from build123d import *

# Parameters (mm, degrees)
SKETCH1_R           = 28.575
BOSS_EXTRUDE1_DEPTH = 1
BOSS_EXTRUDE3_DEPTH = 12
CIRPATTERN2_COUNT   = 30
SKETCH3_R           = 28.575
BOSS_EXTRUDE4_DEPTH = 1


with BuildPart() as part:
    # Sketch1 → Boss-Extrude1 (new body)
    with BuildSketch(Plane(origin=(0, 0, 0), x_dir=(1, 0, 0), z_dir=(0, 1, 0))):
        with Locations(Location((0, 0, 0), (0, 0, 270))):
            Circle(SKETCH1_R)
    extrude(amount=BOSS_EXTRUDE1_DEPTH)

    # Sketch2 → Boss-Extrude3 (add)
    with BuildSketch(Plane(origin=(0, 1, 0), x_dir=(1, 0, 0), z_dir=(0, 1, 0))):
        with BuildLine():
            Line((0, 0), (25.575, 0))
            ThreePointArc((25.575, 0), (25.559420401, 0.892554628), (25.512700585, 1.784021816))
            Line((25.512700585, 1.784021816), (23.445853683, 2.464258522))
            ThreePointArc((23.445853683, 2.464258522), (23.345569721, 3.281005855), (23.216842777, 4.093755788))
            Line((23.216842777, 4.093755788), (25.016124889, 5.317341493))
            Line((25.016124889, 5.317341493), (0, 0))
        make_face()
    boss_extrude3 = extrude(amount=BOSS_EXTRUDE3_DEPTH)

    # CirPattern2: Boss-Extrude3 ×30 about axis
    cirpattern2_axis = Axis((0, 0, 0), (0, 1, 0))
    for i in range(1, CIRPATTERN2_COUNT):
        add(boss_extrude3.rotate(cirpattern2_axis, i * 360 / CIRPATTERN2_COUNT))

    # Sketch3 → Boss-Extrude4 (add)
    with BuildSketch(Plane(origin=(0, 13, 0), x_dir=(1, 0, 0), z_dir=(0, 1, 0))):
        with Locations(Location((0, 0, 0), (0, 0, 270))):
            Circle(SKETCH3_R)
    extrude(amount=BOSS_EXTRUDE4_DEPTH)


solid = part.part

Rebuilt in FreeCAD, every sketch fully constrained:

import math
import FreeCAD as App
import Part
import Sketcher
from FreeCAD import Vector
Q = App.Units.Quantity

doc = App.newDocument("Part")
params = doc.addObject("Spreadsheet::Sheet", "Params")
for row, (alias, value) in enumerate([
    ("sketch1_diameter", "57.15 mm"),
    ("pad1_length", "1 mm"),
    ("pad2_length", "12 mm"),
    ("sketch3_diameter", "57.15 mm"),
    ("pad3_length", "1 mm"),
], start=1):
    params.set(f"A{row}", alias)
    params.set(f"B{row}", "=" + value)
    params.setAlias(f"B{row}", alias)

body = doc.addObject("PartDesign::Body", "Body")

sketch1 = body.newObject("Sketcher::SketchObject", "Sketch")
sketch1.AttachmentSupport = (doc.getObject("XZ_Plane"), [""])
sketch1.MapMode = "FlatFace"
sketch1.addGeometry(Part.Circle(Vector(0, 0, 0), Vector(0, 0, 1), 29), False)
sketch1.addConstraint([
    Sketcher.Constraint("Coincident", 0, 3, -1, 1),
    Sketcher.Constraint("Diameter", 0, Q("57.15 mm")),
])
sketch1.setExpression("Constraints[1]", "Params.sketch1_diameter")
pad1 = body.newObject("PartDesign::Pad", "Pad")
pad1.Profile = sketch1
pad1.setExpression("Length", "Params.pad1_length")
pad1.Reversed = True

sketch2 = body.newObject("Sketcher::SketchObject", "Sketch001")
sketch2.AttachmentSupport = (doc.getObject("XZ_Plane"), [""])
sketch2.MapMode = "FlatFace"
sketch2.AttachmentOffset = App.Placement(Vector(0, 0, -1), App.Rotation())
sketch2.addGeometry([
    Part.LineSegment(Vector(0, 0, 0), Vector(25.6, 0, 0)),
    Part.ArcOfCircle(Part.Circle(Vector(0, 0, 0), Vector(0, 0, 1), 25.6), math.radians(-4), math.radians(0)),
    Part.LineSegment(Vector(25.5, -1.8, 0), Vector(23.4, -2.5, 0)),
    Part.ArcOfCircle(Part.Circle(Vector(0, 0, 0), Vector(0, 0, 1), 23.6), math.radians(-10), math.radians(-6)),
    Part.LineSegment(Vector(23.2, -4.1, 0), Vector(25, -5.3, 0)),
    Part.LineSegment(Vector(25, -5.3, 0), Vector(0, 0, 0)),
], False)
sketch2.addConstraint([
    Sketcher.Constraint("Coincident", 0, 2, 1, 2),
    Sketcher.Constraint("Coincident", 1, 1, 2, 1),
    Sketcher.Constraint("Coincident", 2, 2, 3, 2),
    Sketcher.Constraint("Coincident", 3, 1, 4, 1),
    Sketcher.Constraint("Coincident", 4, 2, 5, 1),
    Sketcher.Constraint("Coincident", 5, 2, 0, 1),
    Sketcher.Constraint("Horizontal", 0),
    Sketcher.Constraint("Coincident", 1, 3, -1, 1),
    Sketcher.Constraint("Coincident", 3, 3, -1, 1),
    Sketcher.Constraint("Coincident", 5, 2, -1, 1),
    Sketcher.Constraint("Equal", 2, 4),
    Sketcher.Constraint("Angle", 5, Q("168 deg")),
    Sketcher.Constraint("Radius", 1, Q("25.575 mm")),
    Sketcher.Constraint("Radius", 3, Q("23.574999 mm")),
    Sketcher.Constraint("Distance", 5, Q("25.575 mm")),
    Sketcher.Constraint("DistanceX", -1, 1, 1, 1, Q("25.512701 mm")),
    Sketcher.Constraint("Distance", 2, Q("2.175909 mm")),
])
pad2 = body.newObject("PartDesign::Pad", "Pad001")
pad2.Profile = sketch2
pad2.setExpression("Length", "Params.pad2_length")
pad2.Reversed = True
doc.recompute()

polarpattern = body.newObject("PartDesign::PolarPattern", "PolarPattern")
polarpattern.Originals = [pad2]
polarpattern.Axis = (doc.getObject("Y_Axis"), [""])
polarpattern.Angle = 360
polarpattern.Occurrences = 30
body.Tip = polarpattern

sketch3 = body.newObject("Sketcher::SketchObject", "Sketch002")
sketch3.AttachmentSupport = (doc.getObject("XZ_Plane"), [""])
sketch3.MapMode = "FlatFace"
sketch3.AttachmentOffset = App.Placement(Vector(0, 0, -13), App.Rotation())
sketch3.addGeometry(Part.Circle(Vector(0, 0, 0), Vector(0, 0, 1), 29), False)
sketch3.addConstraint([
    Sketcher.Constraint("Coincident", 0, 3, -1, 1),
    Sketcher.Constraint("Diameter", 0, Q("57.15 mm")),
])
sketch3.setExpression("Constraints[1]", "Params.sketch3_diameter")
pad3 = body.newObject("PartDesign::Pad", "Pad002")
pad3.Profile = sketch3
pad3.setExpression("Length", "Params.pad3_length")
pad3.Reversed = True

doc.recompute()
